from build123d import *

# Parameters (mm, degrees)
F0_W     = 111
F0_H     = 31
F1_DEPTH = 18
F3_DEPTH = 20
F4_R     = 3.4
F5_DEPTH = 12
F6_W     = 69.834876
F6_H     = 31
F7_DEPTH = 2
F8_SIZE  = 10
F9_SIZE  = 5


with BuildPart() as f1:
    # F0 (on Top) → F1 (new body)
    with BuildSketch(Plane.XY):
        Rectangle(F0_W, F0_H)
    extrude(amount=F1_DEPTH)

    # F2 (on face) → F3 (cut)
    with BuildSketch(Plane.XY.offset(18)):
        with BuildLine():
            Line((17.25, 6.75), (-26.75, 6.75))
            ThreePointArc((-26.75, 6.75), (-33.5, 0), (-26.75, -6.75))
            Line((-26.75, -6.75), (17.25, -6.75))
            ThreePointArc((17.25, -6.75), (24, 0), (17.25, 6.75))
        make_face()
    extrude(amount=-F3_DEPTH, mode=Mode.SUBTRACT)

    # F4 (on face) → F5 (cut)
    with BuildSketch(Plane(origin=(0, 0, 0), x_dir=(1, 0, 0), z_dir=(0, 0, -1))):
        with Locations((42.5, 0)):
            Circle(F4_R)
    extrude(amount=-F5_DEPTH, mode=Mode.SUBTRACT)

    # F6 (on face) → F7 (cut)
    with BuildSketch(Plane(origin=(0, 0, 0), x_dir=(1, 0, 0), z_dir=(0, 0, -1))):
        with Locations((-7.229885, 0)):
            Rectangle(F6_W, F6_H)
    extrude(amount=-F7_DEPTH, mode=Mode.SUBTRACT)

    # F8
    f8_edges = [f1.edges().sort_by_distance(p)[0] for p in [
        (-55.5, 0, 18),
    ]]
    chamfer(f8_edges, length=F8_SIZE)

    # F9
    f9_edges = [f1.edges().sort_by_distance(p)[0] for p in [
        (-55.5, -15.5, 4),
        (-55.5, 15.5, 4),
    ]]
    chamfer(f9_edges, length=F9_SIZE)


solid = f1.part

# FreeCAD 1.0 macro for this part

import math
import FreeCAD as App
import Part
import Sketcher
from FreeCAD import Vector


def edges_at(feature, points):
    """Names of the edges that pass closest to the given points."""
    edges = feature.Shape.Edges
    near = lambda p: min(range(len(edges)), key=lambda i: edges[i].distToShape(Part.Vertex(*p))[0])
    return sorted({f"Edge{near(p) + 1}" for p in points})


def add_polygon(sketch, points):
    """Adds a closed chain of lines whose ends are joined by coincident constraints."""
    first, n = sketch.GeometryCount, len(points)
    for a, b in zip(points, points[1:] + points[:1]):
        sketch.addGeometry(Part.LineSegment(App.Vector(*a, 0), App.Vector(*b, 0)), False)
    for i in range(n):
        sketch.addConstraint(Sketcher.Constraint("Coincident", first + i, 2, first + (i + 1) % n, 1))

doc = App.newDocument("Part")
body = doc.addObject("PartDesign::Body", "Body")

sketch1 = body.newObject("Sketcher::SketchObject", "Sketch")
sketch1.AttachmentSupport = (doc.getObject("XY_Plane"), [""])
sketch1.MapMode = "FlatFace"
add_polygon(sketch1, [(-55.5, 15.5), (-55.5, -15.5), (55.5, -15.5), (55.5, 15.5)])
sketch1.addConstraint([
    Sketcher.Constraint("Vertical", 0),
    Sketcher.Constraint("Horizontal", 1),
    Sketcher.Constraint("Vertical", 2),
    Sketcher.Constraint("Horizontal", 3),
    Sketcher.Constraint("Symmetric", 0, 2, 2, 2, -1, 1),
    Sketcher.Constraint("DistanceX", 1, 1, 1, 2, 111.0),
    Sketcher.Constraint("DistanceY", 0, 2, 0, 1, 31.0),
])
pad1 = body.newObject("PartDesign::Pad", "Pad")
pad1.Profile = sketch1
pad1.Length = 18

sketch2 = body.newObject("Sketcher::SketchObject", "Sketch001")
sketch2.AttachmentSupport = (doc.getObject("XY_Plane"), [""])
sketch2.MapMode = "FlatFace"
sketch2.AttachmentOffset = App.Placement(Vector(0, 0, 18), App.Rotation())
sketch2.addGeometry([
    Part.LineSegment(Vector(17.25, 6.75, 0), Vector(-26.75, 6.75, 0)),
    Part.ArcOfCircle(Part.Circle(Vector(-26.75, 0, 0), Vector(0, 0, 1), 6.75), math.radians(90), math.radians(270)),
    Part.LineSegment(Vector(-26.75, -6.75, 0), Vector(17.25, -6.75, 0)),
    Part.ArcOfCircle(Part.Circle(Vector(17.25, 0, 0), Vector(0, 0, 1), 6.75), math.radians(-90), math.radians(90)),
], False)
sketch2.addConstraint([
    Sketcher.Constraint("Tangent", 0, 2, 1, 1),
    Sketcher.Constraint("Tangent", 1, 2, 2, 1),
    Sketcher.Constraint("Tangent", 2, 2, 3, 1),
    Sketcher.Constraint("Tangent", 3, 2, 0, 1),
    Sketcher.Constraint("Horizontal", 0),
    Sketcher.Constraint("Horizontal", 2),
    Sketcher.Constraint("PointOnObject", 1, 3, -1),
    Sketcher.Constraint("DistanceX", 0, 2, 0, 1, 44.0),
    Sketcher.Constraint("Radius", 1, 6.75),
    Sketcher.Constraint("DistanceX", 1, 3, -1, 1, 26.75),
])
pocket1 = body.newObject("PartDesign::Pocket", "Pocket")
pocket1.Profile = sketch2
pocket1.Length = 20

sketch3 = body.newObject("Sketcher::SketchObject", "Sketch002")
sketch3.AttachmentSupport = (doc.getObject("XY_Plane"), [""])
sketch3.MapMode = "FlatFace"
sketch3.addGeometry(Part.Circle(Vector(42.5, 0, 0), Vector(0, 0, 1), 3.4), False)
sketch3.addConstraint([
    Sketcher.Constraint("PointOnObject", 0, 3, -1),
    Sketcher.Constraint("Diameter", 0, 6.8),
    Sketcher.Constraint("DistanceX", -1, 1, 0, 3, 42.5),
])
pocket2 = body.newObject("PartDesign::Pocket", "Pocket001")
pocket2.Profile = sketch3
pocket2.Length = 12
pocket2.Reversed = True

sketch4 = body.newObject("Sketcher::SketchObject", "Sketch003")
sketch4.AttachmentSupport = (doc.getObject("XY_Plane"), [""])
sketch4.MapMode = "FlatFace"
add_polygon(sketch4, [(-42.147323, -15.5), (-42.147323, 15.5), (27.687553, 15.5), (27.687553, -15.5)])
sketch4.addConstraint([
    Sketcher.Constraint("Vertical", 0),
    Sketcher.Constraint("Horizontal", 1),
    Sketcher.Constraint("Vertical", 2),
    Sketcher.Constraint("Horizontal", 3),
    Sketcher.Constraint("DistanceY", 0, 1, 0, 2, 31.0),
    Sketcher.Constraint("DistanceY", -1, 1, 0, 2, 15.5),
    Sketcher.Constraint("DistanceX", 1, 1, 1, 2, 69.834876),
    Sketcher.Constraint("DistanceX", 0, 2, -1, 1, 42.147323),
])
pocket3 = body.newObject("PartDesign::Pocket", "Pocket002")
pocket3.Profile = sketch4
pocket3.Length = 2
pocket3.Reversed = True
doc.recompute()

chamfer = body.newObject("PartDesign::Chamfer", "Chamfer")
chamfer.Base = (pocket3, edges_at(pocket3, [(-55.5, 0, 18)]))
chamfer.Size = 10
doc.recompute()

chamfer2 = body.newObject("PartDesign::Chamfer", "Chamfer001")
chamfer2.Base = (chamfer, edges_at(chamfer, [(-55.5, -15.5, 4), (-55.5, 15.5, 4)]))
chamfer2.Size = 5

doc.recompute()
